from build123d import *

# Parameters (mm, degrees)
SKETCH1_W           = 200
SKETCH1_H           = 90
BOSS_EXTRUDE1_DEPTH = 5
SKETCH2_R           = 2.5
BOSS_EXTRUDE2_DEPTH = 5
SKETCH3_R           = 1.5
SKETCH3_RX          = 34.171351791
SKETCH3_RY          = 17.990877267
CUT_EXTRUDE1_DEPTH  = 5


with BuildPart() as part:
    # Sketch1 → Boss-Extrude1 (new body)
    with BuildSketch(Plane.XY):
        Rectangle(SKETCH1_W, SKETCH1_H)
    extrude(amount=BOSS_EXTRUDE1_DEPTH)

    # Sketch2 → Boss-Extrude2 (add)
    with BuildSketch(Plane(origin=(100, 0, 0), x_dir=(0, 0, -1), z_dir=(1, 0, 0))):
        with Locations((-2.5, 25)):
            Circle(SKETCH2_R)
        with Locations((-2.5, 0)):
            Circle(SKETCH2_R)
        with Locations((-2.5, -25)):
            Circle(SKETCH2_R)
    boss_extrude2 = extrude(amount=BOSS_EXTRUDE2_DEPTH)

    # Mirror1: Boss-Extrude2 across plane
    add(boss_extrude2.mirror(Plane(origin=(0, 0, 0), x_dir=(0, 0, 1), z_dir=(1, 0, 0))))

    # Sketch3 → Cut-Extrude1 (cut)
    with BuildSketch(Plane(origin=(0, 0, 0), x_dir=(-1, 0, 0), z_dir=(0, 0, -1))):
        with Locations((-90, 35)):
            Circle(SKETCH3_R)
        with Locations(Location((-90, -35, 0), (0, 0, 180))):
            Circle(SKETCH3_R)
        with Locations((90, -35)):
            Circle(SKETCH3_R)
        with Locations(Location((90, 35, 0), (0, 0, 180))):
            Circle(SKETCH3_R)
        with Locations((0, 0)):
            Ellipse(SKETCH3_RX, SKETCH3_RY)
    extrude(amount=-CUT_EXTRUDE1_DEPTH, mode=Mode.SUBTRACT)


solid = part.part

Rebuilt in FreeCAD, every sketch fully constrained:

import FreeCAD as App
import Part
import Sketcher

V = App.Vector


def add_polygon(sketch, points):
    """Adds a closed chain of lines whose ends are joined by coincident constraints."""
    first, n = sketch.GeometryCount, len(points)
    for a, b in zip(points, points[1:] + points[:1]):
        sketch.addGeometry(Part.LineSegment(App.Vector(*a, 0), App.Vector(*b, 0)), False)
    for i in range(n):
        sketch.addConstraint(Sketcher.Constraint("Coincident", first + i, 2, first + (i + 1) % n, 1))

doc = App.newDocument("Part")
params = doc.addObject("Spreadsheet::Sheet", "Params")
for row, (alias, value) in enumerate([
    ("sketch1_width", "200 mm"),
    ("sketch1_height", "90 mm"),
    ("pad1_length", "5 mm"),
    ("sketch2_diameter", "5 mm"),
    ("pad2_length", "5 mm"),
    ("sketch3_diameter", "3 mm"),
    ("pocket1_length", "5 mm"),
], start=1):
    params.set(f"A{row}", alias)
    params.set(f"B{row}", "=" + value)
    params.setAlias(f"B{row}", alias)

body = doc.addObject("PartDesign::Body", "Body")

# Sketch on XY plane
sketch1 = doc.addObject("Sketcher::SketchObject", "Sketch")
body.addObject(sketch1)
sketch1.AttachmentSupport = (doc.XY_Plane, [""])
sketch1.MapMode = "FlatFace"
add_polygon(sketch1, [(-100, 45), (-100, -45), (100, -45), (100, 45)])  # lines 0-3
sketch1.addConstraint(Sketcher.Constraint("Vertical", 0))
sketch1.addConstraint(Sketcher.Constraint("Horizontal", 1))
sketch1.addConstraint(Sketcher.Constraint("Vertical", 2))
sketch1.addConstraint(Sketcher.Constraint("Horizontal", 3))
sketch1.addConstraint(Sketcher.Constraint("Symmetric", 0, 2, 2, 2, -1, 1))
sketch1.addConstraint(Sketcher.Constraint("DistanceX", 1, 1, 1, 2, 200.0))
sketch1.addConstraint(Sketcher.Constraint("DistanceY", 0, 2, 0, 1, 90.0))
sketch1.setExpression("Constraints[9]", "Params.sketch1_width")
sketch1.setExpression("Constraints[10]", "Params.sketch1_height")
pad1 = doc.addObject("PartDesign::Pad", "Pad")
body.addObject(pad1)
pad1.Profile = sketch1
pad1.setExpression("Length", "Params.pad1_length")

# Sketch on YZ plane
sketch2 = doc.addObject("Sketcher::SketchObject", "Sketch001")
body.addObject(sketch2)
sketch2.AttachmentSupport = (doc.YZ_Plane, [""])
sketch2.MapMode = "FlatFace"
sketch2.AttachmentOffset = App.Placement(V(0, 0, 100), App.Rotation())
sketch2.addGeometry(Part.Circle(V(25, 2.5, 0), V(0, 0, 1), 2.5), False)
sketch2.addGeometry(Part.Circle(V(0, 2.5, 0), V(0, 0, 1), 2.5), False)
sketch2.addGeometry(Part.Circle(V(-25, 2.5, 0), V(0, 0, 1), 2.5), False)
sketch2.addConstraint(Sketcher.Constraint("Equal", 0, 1))
sketch2.addConstraint(Sketcher.Constraint("Equal", 1, 2))
sketch2.addConstraint(Sketcher.Constraint("Symmetric", 0, 3, 2, 3, -2))
sketch2.addConstraint(Sketcher.Constraint("PointOnObject", 1, 3, -2))
sketch2.addConstraint(Sketcher.Constraint("Horizontal", 0, 3, 1, 3))
sketch2.addConstraint(Sketcher.Constraint("Diameter", 0, 5.0))
sketch2.addConstraint(Sketcher.Constraint("DistanceX", -1, 1, 0, 3, 25.0))
sketch2.addConstraint(Sketcher.Constraint("DistanceY", -1, 1, 0, 3, 2.5))
sketch2.setExpression("Constraints[5]", "Params.sketch2_diameter")
pad2 = doc.addObject("PartDesign::Pad", "Pad001")
body.addObject(pad2)
pad2.Profile = sketch2
pad2.setExpression("Length", "Params.pad2_length")
doc.recompute()

mirrored = doc.addObject("PartDesign::Mirrored", "Mirrored")
body.addObject(mirrored)
mirrored.Originals = [pad2]
mirrored.MirrorPlane = (doc.YZ_Plane, [""])
body.Tip = mirrored

# Sketch on XY plane
sketch3 = doc.addObject("Sketcher::SketchObject", "Sketch002")
body.addObject(sketch3)
sketch3.AttachmentSupport = (doc.XY_Plane, [""])
sketch3.MapMode = "FlatFace"
sketch3.addGeometry(Part.Circle(V(90, 35, 0), V(0, 0, 1), 1.5), False)
sketch3.addGeometry(Part.Circle(V(90, -35, 0), V(0, 0, 1), 1.5), False)
sketch3.addGeometry(Part.Circle(V(-90, -35, 0), V(0, 0, 1), 1.5), False)
sketch3.addGeometry(Part.Circle(V(-90, 35, 0), V(0, 0, 1), 1.5), False)
sketch3.addGeometry(Part.Ellipse(V(-34.171352, 0, 0), V(0, -17.990877, 0), V(0, 0, 0)), False)
sketch3.addConstraint(Sketcher.Constraint("Block", 4))
sketch3.addConstraint(Sketcher.Constraint("Equal", 0, 1))
sketch3.addConstraint(Sketcher.Constraint("Equal", 1, 2))
sketch3.addConstraint(Sketcher.Constraint("Equal", 2, 3))
sketch3.addConstraint(Sketcher.Constraint("Symmetric", 0, 3, 2, 3, -1, 1))
sketch3.addConstraint(Sketcher.Constraint("Symmetric", 1, 3, 3, 3, -1, 1))
sketch3.addConstraint(Sketcher.Constraint("Symmetric", 1, 3, 2, 3, -2))
sketch3.addConstraint(Sketcher.Constraint("Diameter", 0, 3.0))
sketch3.addConstraint(Sketcher.Constraint("DistanceX", -1, 1, 0, 3, 90.0))
sketch3.addConstraint(Sketcher.Constraint("DistanceY", -1, 1, 0, 3, 35.0))
sketch3.setExpression("Constraints[7]", "Params.sketch3_diameter")
pocket1 = doc.addObject("PartDesign::Pocket", "Pocket")
body.addObject(pocket1)
pocket1.Profile = sketch3
pocket1.setExpression("Length", "Params.pocket1_length")
pocket1.Reversed = True

doc.recompute()
